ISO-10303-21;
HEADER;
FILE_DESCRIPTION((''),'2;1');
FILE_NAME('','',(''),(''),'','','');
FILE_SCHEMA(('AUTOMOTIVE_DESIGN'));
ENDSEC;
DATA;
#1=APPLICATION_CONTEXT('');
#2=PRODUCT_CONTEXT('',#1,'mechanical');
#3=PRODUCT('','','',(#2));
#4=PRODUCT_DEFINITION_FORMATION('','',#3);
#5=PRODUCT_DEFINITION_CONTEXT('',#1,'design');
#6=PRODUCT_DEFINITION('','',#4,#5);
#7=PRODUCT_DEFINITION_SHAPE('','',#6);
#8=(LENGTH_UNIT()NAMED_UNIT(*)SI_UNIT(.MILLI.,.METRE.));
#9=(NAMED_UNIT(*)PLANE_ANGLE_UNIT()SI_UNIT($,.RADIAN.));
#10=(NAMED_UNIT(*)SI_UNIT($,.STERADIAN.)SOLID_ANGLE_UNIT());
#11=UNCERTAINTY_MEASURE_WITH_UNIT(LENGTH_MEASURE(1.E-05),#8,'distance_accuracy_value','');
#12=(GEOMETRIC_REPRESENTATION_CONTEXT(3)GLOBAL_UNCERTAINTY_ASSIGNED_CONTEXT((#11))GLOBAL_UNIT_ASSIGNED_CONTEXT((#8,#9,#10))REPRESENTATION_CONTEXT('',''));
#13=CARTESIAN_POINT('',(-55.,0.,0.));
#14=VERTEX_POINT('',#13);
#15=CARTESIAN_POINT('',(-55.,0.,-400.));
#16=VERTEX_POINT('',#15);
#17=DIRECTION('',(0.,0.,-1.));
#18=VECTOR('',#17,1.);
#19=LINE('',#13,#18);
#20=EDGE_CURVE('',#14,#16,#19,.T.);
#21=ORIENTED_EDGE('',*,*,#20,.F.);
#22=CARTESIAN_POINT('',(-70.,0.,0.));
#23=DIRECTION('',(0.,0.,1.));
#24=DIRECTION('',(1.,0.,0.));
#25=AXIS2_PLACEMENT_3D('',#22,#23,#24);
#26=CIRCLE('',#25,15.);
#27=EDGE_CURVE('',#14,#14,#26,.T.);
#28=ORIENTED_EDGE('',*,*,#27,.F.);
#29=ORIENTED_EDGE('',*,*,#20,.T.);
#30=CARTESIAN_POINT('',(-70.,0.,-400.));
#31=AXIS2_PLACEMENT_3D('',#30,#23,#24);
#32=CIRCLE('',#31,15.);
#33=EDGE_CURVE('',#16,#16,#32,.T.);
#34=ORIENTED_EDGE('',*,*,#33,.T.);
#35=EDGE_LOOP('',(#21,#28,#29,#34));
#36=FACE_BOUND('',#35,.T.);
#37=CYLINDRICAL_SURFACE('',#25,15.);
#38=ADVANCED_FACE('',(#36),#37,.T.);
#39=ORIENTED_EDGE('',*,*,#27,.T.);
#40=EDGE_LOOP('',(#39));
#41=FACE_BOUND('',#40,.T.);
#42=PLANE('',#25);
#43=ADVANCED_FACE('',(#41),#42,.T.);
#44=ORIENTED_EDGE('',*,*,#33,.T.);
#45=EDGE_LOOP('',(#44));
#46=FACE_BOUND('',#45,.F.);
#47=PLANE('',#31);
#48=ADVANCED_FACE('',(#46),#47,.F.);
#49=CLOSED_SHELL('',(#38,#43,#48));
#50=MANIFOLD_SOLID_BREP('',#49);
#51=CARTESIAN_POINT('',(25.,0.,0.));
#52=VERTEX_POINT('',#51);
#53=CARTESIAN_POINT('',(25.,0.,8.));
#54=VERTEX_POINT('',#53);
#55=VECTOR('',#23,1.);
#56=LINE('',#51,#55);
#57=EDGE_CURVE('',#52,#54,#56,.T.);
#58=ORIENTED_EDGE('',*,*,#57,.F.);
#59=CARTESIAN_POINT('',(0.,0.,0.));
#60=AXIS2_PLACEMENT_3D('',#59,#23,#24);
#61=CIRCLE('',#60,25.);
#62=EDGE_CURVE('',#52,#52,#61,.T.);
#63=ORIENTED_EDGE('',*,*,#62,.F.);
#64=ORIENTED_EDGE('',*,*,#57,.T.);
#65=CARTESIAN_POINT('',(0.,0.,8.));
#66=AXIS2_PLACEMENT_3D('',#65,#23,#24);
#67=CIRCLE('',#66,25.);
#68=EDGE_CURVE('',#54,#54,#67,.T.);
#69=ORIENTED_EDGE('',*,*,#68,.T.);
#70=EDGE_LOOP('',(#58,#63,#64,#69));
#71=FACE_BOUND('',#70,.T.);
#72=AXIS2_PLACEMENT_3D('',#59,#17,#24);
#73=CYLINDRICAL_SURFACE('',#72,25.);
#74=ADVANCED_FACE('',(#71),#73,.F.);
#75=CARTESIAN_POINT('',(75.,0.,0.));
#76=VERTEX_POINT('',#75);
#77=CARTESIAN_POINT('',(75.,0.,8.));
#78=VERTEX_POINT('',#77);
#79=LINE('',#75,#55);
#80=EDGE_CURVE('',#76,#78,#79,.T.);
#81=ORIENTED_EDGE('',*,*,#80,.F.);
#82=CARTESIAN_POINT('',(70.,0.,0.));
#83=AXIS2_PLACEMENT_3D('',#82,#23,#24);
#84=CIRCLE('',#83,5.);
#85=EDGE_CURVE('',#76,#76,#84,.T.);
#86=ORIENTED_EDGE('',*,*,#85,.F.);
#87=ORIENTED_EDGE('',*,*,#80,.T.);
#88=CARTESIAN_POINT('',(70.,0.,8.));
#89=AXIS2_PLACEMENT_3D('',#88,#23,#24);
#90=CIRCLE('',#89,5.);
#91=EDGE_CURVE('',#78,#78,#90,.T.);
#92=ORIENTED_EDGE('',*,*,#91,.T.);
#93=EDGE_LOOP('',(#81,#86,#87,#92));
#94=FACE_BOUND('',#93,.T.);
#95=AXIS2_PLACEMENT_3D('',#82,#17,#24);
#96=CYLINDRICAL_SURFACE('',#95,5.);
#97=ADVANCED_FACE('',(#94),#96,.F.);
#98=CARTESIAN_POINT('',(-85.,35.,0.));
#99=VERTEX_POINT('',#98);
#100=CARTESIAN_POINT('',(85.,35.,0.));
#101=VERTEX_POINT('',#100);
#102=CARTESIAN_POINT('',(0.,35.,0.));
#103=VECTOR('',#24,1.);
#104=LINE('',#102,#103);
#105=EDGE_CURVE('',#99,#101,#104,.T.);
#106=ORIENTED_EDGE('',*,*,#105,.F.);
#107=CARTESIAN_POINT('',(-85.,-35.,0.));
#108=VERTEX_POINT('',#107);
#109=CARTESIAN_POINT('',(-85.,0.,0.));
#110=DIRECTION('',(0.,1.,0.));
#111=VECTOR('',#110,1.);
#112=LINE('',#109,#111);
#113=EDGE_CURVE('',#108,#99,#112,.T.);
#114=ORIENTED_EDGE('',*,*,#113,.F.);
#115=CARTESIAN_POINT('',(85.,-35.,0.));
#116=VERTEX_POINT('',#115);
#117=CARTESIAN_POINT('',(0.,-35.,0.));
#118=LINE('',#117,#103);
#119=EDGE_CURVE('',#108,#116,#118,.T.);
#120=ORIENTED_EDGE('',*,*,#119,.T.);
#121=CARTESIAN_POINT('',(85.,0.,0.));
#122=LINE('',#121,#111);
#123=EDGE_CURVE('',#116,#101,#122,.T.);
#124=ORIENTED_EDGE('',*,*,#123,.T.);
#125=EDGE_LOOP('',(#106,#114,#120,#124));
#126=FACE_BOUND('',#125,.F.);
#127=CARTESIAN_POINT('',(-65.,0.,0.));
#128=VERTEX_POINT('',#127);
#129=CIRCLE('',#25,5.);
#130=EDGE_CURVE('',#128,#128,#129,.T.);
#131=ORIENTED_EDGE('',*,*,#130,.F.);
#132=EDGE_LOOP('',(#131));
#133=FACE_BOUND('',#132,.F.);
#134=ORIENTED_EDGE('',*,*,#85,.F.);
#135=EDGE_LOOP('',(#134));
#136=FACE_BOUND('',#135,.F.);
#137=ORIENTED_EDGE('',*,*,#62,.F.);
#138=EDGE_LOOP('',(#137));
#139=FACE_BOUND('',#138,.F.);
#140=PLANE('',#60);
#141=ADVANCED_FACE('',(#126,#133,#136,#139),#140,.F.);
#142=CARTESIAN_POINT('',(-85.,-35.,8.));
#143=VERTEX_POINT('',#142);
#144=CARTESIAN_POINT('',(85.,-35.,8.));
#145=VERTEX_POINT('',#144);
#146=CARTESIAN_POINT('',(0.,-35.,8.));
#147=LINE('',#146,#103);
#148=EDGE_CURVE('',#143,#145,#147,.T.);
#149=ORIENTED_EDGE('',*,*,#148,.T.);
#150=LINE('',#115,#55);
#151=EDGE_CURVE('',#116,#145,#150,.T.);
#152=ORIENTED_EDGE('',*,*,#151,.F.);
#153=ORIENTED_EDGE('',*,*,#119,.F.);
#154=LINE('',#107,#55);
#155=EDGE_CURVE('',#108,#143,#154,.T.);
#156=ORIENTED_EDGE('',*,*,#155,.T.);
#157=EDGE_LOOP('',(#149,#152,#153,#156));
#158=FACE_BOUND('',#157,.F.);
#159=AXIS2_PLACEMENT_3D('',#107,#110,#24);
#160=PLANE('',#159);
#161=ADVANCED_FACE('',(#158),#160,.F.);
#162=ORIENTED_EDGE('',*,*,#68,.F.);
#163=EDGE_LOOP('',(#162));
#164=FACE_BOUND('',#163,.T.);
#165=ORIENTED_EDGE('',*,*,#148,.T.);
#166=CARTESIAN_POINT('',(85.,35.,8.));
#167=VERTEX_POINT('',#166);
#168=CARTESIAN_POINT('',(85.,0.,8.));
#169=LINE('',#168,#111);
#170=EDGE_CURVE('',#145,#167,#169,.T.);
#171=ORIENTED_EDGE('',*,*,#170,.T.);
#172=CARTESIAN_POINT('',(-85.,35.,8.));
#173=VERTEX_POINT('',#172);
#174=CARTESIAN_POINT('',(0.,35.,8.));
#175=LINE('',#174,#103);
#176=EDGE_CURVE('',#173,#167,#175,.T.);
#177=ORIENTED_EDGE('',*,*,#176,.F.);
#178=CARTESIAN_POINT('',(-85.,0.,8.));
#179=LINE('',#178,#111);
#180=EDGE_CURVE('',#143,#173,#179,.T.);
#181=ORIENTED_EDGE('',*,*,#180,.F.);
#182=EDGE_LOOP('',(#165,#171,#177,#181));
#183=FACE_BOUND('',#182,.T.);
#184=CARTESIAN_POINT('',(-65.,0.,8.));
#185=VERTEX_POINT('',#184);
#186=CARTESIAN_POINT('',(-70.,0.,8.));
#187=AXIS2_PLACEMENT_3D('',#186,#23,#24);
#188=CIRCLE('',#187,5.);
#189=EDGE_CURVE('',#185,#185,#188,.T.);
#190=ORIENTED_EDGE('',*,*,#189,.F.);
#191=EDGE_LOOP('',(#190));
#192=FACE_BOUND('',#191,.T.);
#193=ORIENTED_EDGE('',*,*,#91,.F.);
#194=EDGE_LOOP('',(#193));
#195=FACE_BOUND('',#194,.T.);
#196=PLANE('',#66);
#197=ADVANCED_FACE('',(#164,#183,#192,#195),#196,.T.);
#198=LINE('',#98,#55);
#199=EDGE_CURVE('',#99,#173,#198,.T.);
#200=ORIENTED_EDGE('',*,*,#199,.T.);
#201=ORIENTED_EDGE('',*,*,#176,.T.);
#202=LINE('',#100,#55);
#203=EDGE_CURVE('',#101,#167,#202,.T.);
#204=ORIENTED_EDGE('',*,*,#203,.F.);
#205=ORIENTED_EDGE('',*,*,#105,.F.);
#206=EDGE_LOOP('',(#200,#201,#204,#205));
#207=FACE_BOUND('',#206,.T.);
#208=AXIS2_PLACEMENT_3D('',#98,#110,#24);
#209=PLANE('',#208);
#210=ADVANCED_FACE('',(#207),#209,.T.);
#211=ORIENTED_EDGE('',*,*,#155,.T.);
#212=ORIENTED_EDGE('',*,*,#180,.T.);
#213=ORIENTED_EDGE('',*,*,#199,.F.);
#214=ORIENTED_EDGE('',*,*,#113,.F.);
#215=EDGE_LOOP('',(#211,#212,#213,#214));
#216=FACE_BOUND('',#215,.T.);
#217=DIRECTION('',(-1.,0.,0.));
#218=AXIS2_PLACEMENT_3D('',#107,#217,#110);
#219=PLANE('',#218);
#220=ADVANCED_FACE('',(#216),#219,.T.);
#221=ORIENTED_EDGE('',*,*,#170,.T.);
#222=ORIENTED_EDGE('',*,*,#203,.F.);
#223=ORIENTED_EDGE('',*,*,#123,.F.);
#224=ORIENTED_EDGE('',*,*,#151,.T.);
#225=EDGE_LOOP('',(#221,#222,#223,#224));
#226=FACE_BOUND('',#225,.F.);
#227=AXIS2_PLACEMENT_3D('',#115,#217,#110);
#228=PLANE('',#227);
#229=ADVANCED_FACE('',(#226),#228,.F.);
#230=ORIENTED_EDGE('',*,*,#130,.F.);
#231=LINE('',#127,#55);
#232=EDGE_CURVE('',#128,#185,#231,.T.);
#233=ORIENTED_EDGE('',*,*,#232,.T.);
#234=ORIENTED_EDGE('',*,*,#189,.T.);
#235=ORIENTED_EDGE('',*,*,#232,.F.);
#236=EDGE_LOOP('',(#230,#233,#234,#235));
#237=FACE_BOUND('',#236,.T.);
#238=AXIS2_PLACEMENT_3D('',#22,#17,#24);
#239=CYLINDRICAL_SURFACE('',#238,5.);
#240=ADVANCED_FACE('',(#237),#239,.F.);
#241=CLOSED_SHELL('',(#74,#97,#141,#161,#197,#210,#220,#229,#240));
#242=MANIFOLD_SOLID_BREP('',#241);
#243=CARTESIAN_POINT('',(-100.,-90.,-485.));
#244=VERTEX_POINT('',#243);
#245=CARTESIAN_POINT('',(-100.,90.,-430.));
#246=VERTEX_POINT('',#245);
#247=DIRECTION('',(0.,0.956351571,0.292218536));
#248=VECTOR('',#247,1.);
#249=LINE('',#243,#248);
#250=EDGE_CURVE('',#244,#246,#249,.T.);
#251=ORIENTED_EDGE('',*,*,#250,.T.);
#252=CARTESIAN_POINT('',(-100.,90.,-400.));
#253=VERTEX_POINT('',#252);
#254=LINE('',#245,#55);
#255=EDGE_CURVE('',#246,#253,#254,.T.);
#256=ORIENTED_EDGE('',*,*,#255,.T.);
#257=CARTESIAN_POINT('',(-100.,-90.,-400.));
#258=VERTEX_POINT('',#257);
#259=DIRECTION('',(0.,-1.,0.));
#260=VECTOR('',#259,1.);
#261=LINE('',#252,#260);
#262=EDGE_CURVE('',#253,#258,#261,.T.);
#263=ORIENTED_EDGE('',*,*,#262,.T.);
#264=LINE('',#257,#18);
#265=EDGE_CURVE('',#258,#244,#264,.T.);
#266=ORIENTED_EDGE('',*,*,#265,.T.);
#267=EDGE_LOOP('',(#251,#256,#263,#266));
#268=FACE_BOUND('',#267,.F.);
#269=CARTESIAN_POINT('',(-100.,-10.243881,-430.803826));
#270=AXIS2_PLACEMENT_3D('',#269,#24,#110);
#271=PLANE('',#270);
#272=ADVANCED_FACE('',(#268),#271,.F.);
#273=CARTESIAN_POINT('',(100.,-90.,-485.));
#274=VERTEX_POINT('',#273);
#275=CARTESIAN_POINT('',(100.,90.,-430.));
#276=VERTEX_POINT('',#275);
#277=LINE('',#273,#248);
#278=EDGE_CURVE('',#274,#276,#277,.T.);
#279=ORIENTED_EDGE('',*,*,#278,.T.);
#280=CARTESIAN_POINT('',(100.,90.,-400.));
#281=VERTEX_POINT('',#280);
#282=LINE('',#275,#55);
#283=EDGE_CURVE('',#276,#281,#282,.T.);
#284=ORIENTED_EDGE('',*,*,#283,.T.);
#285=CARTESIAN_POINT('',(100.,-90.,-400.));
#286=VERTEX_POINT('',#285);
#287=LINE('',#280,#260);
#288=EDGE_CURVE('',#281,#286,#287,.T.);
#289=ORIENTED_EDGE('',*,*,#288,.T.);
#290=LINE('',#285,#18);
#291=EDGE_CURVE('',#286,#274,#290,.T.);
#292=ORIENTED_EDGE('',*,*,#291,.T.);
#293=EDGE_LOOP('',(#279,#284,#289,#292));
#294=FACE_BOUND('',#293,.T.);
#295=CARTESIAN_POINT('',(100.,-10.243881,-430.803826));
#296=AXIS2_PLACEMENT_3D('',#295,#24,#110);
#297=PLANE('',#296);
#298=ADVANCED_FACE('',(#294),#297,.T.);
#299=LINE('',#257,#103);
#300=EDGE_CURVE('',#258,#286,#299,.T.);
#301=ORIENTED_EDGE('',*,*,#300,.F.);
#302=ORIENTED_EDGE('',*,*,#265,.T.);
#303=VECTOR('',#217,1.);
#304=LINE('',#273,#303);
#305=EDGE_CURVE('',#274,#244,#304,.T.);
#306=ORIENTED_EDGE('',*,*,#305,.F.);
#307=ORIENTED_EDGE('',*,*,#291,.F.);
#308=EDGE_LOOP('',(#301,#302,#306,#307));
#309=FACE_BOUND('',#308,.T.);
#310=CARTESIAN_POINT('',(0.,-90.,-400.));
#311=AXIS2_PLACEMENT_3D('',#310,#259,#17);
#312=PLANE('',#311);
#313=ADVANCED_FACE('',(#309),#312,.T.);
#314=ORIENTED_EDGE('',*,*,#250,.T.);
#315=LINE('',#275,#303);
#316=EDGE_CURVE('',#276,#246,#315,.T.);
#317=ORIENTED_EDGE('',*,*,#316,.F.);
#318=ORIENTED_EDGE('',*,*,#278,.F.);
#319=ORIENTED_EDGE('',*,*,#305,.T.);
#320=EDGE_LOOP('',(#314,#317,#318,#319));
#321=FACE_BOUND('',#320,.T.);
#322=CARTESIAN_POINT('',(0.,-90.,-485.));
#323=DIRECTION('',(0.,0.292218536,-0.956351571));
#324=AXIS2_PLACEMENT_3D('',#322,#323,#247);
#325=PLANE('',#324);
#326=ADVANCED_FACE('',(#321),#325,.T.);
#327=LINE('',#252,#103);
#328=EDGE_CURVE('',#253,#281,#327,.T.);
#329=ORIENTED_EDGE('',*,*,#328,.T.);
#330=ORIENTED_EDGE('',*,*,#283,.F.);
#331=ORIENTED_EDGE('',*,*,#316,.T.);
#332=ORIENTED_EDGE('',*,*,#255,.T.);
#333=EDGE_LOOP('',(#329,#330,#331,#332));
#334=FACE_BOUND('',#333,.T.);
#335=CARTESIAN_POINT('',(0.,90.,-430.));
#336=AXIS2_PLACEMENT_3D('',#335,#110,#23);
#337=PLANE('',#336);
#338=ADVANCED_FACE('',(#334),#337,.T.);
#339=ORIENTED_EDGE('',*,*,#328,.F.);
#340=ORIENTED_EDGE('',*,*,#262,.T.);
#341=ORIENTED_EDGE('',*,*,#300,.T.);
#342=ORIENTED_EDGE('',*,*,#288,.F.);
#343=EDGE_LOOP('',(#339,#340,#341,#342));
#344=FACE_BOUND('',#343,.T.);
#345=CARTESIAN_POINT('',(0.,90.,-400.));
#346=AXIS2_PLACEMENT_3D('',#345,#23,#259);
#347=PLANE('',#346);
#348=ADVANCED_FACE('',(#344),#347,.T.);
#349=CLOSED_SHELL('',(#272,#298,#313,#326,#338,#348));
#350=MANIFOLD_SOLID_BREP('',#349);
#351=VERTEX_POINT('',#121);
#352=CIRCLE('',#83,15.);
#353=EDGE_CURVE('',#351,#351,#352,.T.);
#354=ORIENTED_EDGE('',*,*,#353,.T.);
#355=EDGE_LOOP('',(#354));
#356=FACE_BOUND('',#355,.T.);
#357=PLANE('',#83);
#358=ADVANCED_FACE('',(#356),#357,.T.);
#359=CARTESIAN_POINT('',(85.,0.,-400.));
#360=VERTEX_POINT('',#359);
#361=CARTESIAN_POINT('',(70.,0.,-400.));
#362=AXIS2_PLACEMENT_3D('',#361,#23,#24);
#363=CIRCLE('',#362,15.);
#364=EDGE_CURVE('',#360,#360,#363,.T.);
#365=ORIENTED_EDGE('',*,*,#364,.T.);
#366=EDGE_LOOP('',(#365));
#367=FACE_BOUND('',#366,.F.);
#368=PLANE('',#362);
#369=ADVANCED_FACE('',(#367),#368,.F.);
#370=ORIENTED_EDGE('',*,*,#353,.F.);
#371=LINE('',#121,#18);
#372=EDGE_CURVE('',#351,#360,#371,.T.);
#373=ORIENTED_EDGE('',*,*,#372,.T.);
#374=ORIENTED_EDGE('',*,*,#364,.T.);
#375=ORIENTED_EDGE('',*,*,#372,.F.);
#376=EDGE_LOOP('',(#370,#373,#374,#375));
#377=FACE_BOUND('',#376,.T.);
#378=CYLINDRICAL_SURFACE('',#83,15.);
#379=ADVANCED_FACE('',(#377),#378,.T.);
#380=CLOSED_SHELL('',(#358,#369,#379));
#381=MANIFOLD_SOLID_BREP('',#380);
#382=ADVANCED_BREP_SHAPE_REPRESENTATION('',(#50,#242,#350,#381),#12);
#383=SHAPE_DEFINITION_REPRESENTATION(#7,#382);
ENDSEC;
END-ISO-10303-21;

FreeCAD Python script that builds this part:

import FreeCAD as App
import Part
import Sketcher


def add_polygon(sketch, points):
    """Adds a closed chain of lines whose ends are joined by coincident constraints."""
    first, n = sketch.GeometryCount, len(points)
    for a, b in zip(points, points[1:] + points[:1]):
        sketch.addGeometry(Part.LineSegment(App.Vector(*a, 0), App.Vector(*b, 0)), False)
    for i in range(n):
        sketch.addConstraint(Sketcher.Constraint("Coincident", first + i, 2, first + (i + 1) % n, 1))

doc = App.newDocument("Part")
params = doc.addObject("Spreadsheet::Sheet", "Params")
for row, (alias, value) in enumerate([
    ("sketch1_diameter", "10 mm"),
    ("sketch1_diameter2", "50 mm"),
    ("sketch1_width", "170 mm"),
    ("sketch1_height", "70 mm"),
    ("pad1_length", "8 mm"),
    ("sketch2_diameter", "30 mm"),
    ("pad2_length", "400 mm"),
    ("sketch3_width", "180 mm"),
    ("sketch3_height", "30 mm"),
    ("sketch3_height2", "85 mm"),
    ("pad3_length", "200 mm"),
], start=1):
    params.set(f"A{row}", alias)
    params.set(f"B{row}", "=" + value)
    params.setAlias(f"B{row}", alias)

body = doc.addObject("PartDesign::Body", "Body")

# Sketch on XY plane
sketch1 = doc.addObject("Sketcher::SketchObject", "Sketch")
body.addObject(sketch1)
sketch1.AttachmentSupport = (doc.XY_Plane, [""])
sketch1.MapMode = "FlatFace"
add_polygon(sketch1, [(-85, 35), (-85, -35), (85, -35), (85, 35)])  # lines 0-3
sketch1.addGeometry(Part.Circle(App.Vector(-70, 0, 0), App.Vector(0, 0, 1), 5), False)  # 4
sketch1.addGeometry(Part.Circle(App.Vector(0, 0, 0), App.Vector(0, 0, 1), 25), False)  # 5
sketch1.addGeometry(Part.Circle(App.Vector(70, 0, 0), App.Vector(0, 0, 1), 5), False)  # 6
sketch1.addConstraint([
    Sketcher.Constraint("Vertical", 0),
    Sketcher.Constraint("Horizontal", 1),
    Sketcher.Constraint("Vertical", 2),
    Sketcher.Constraint("Horizontal", 3),
    Sketcher.Constraint("Coincident", 5, 3, -1, 1),
    Sketcher.Constraint("Equal", 4, 6),
    Sketcher.Constraint("Symmetric", 4, 3, 6, 3, -1, 1),
    Sketcher.Constraint("Symmetric", 0, 2, 2, 2, -1, 1),
    Sketcher.Constraint("PointOnObject", 4, 3, -1),
    Sketcher.Constraint("Diameter", 4, 10.0),
    Sketcher.Constraint("Diameter", 5, 50.0),
    Sketcher.Constraint("DistanceX", 1, 1, 1, 2, 170.0),
    Sketcher.Constraint("DistanceY", 0, 2, 0, 1, 70.0),
    Sketcher.Constraint("DistanceX", 4, 3, -1, 1, 70.0),
])
sketch1.setExpression("Constraints[13]", "Params.sketch1_diameter")
sketch1.setExpression("Constraints[14]", "Params.sketch1_diameter2")
sketch1.setExpression("Constraints[15]", "Params.sketch1_width")
sketch1.setExpression("Constraints[16]", "Params.sketch1_height")
pad1 = doc.addObject("PartDesign::Pad", "Pad")
body.addObject(pad1)
pad1.Profile = sketch1
pad1.setExpression("Length", "Params.pad1_length")
body2 = doc.addObject("PartDesign::Body", "Body001")
body2.AllowCompound = True

# Sketch on XY plane
sketch2 = doc.addObject("Sketcher::SketchObject", "Sketch001")
body2.addObject(sketch2)
sketch2.AttachmentSupport = (doc.getObject("XY_Plane001"), [""])
sketch2.MapMode = "FlatFace"
sketch2.addGeometry([
    Part.Circle(App.Vector(-70, 0, 0), App.Vector(0, 0, 1), 15),
    Part.Circle(App.Vector(70, 0, 0), App.Vector(0, 0, 1), 15),
], False)
sketch2.addConstraint([
    Sketcher.Constraint("Equal", 0, 1),
    Sketcher.Constraint("Symmetric", 0, 3, 1, 3, -1, 1),
    Sketcher.Constraint("PointOnObject", 0, 3, -1),
    Sketcher.Constraint("Diameter", 0, 30.0),
    Sketcher.Constraint("DistanceX", 0, 3, -1, 1, 70.0),
])
sketch2.setExpression("Constraints[3]", "Params.sketch2_diameter")
pad2 = doc.addObject("PartDesign::Pad", "Pad001")
body2.addObject(pad2)
pad2.Profile = sketch2
pad2.setExpression("Length", "Params.pad2_length")
pad2.Reversed = True
body3 = doc.addObject("PartDesign::Body", "Body002")

# Sketch on YZ plane
sketch3 = doc.addObject("Sketcher::SketchObject", "Sketch002")
body3.addObject(sketch3)
sketch3.AttachmentSupport = (doc.getObject("YZ_Plane002"), [""])
sketch3.MapMode = "FlatFace"
add_polygon(sketch3, [(90, -430), (90, -400), (-90, -400), (-90, -485)])  # lines 0-3
sketch3.addConstraint([
    Sketcher.Constraint("Vertical", 0),
    Sketcher.Constraint("Horizontal", 1),
    Sketcher.Constraint("Vertical", 2),
    Sketcher.Constraint("DistanceX", 1, 2, 1, 1, 180.0),
    Sketcher.Constraint("DistanceY", 0, 1, 0, 2, 30.0),
    Sketcher.Constraint("DistanceY", 2, 2, 2, 1, 85.0),
    Sketcher.Constraint("DistanceX", -1, 1, 0, 2, 90.0),
    Sketcher.Constraint("DistanceY", 0, 2, -1, 1, 400.0),
])
sketch3.setExpression("Constraints[7]", "Params.sketch3_width")
sketch3.setExpression("Constraints[8]", "Params.sketch3_height")
sketch3.setExpression("Constraints[9]", "Params.sketch3_height2")
pad3 = doc.addObject("PartDesign::Pad", "Pad002")
body3.addObject(pad3)
pad3.Profile = sketch3
pad3.setExpression("Length", "Params.pad3_length")
pad3.Midplane = True

doc.recompute()
